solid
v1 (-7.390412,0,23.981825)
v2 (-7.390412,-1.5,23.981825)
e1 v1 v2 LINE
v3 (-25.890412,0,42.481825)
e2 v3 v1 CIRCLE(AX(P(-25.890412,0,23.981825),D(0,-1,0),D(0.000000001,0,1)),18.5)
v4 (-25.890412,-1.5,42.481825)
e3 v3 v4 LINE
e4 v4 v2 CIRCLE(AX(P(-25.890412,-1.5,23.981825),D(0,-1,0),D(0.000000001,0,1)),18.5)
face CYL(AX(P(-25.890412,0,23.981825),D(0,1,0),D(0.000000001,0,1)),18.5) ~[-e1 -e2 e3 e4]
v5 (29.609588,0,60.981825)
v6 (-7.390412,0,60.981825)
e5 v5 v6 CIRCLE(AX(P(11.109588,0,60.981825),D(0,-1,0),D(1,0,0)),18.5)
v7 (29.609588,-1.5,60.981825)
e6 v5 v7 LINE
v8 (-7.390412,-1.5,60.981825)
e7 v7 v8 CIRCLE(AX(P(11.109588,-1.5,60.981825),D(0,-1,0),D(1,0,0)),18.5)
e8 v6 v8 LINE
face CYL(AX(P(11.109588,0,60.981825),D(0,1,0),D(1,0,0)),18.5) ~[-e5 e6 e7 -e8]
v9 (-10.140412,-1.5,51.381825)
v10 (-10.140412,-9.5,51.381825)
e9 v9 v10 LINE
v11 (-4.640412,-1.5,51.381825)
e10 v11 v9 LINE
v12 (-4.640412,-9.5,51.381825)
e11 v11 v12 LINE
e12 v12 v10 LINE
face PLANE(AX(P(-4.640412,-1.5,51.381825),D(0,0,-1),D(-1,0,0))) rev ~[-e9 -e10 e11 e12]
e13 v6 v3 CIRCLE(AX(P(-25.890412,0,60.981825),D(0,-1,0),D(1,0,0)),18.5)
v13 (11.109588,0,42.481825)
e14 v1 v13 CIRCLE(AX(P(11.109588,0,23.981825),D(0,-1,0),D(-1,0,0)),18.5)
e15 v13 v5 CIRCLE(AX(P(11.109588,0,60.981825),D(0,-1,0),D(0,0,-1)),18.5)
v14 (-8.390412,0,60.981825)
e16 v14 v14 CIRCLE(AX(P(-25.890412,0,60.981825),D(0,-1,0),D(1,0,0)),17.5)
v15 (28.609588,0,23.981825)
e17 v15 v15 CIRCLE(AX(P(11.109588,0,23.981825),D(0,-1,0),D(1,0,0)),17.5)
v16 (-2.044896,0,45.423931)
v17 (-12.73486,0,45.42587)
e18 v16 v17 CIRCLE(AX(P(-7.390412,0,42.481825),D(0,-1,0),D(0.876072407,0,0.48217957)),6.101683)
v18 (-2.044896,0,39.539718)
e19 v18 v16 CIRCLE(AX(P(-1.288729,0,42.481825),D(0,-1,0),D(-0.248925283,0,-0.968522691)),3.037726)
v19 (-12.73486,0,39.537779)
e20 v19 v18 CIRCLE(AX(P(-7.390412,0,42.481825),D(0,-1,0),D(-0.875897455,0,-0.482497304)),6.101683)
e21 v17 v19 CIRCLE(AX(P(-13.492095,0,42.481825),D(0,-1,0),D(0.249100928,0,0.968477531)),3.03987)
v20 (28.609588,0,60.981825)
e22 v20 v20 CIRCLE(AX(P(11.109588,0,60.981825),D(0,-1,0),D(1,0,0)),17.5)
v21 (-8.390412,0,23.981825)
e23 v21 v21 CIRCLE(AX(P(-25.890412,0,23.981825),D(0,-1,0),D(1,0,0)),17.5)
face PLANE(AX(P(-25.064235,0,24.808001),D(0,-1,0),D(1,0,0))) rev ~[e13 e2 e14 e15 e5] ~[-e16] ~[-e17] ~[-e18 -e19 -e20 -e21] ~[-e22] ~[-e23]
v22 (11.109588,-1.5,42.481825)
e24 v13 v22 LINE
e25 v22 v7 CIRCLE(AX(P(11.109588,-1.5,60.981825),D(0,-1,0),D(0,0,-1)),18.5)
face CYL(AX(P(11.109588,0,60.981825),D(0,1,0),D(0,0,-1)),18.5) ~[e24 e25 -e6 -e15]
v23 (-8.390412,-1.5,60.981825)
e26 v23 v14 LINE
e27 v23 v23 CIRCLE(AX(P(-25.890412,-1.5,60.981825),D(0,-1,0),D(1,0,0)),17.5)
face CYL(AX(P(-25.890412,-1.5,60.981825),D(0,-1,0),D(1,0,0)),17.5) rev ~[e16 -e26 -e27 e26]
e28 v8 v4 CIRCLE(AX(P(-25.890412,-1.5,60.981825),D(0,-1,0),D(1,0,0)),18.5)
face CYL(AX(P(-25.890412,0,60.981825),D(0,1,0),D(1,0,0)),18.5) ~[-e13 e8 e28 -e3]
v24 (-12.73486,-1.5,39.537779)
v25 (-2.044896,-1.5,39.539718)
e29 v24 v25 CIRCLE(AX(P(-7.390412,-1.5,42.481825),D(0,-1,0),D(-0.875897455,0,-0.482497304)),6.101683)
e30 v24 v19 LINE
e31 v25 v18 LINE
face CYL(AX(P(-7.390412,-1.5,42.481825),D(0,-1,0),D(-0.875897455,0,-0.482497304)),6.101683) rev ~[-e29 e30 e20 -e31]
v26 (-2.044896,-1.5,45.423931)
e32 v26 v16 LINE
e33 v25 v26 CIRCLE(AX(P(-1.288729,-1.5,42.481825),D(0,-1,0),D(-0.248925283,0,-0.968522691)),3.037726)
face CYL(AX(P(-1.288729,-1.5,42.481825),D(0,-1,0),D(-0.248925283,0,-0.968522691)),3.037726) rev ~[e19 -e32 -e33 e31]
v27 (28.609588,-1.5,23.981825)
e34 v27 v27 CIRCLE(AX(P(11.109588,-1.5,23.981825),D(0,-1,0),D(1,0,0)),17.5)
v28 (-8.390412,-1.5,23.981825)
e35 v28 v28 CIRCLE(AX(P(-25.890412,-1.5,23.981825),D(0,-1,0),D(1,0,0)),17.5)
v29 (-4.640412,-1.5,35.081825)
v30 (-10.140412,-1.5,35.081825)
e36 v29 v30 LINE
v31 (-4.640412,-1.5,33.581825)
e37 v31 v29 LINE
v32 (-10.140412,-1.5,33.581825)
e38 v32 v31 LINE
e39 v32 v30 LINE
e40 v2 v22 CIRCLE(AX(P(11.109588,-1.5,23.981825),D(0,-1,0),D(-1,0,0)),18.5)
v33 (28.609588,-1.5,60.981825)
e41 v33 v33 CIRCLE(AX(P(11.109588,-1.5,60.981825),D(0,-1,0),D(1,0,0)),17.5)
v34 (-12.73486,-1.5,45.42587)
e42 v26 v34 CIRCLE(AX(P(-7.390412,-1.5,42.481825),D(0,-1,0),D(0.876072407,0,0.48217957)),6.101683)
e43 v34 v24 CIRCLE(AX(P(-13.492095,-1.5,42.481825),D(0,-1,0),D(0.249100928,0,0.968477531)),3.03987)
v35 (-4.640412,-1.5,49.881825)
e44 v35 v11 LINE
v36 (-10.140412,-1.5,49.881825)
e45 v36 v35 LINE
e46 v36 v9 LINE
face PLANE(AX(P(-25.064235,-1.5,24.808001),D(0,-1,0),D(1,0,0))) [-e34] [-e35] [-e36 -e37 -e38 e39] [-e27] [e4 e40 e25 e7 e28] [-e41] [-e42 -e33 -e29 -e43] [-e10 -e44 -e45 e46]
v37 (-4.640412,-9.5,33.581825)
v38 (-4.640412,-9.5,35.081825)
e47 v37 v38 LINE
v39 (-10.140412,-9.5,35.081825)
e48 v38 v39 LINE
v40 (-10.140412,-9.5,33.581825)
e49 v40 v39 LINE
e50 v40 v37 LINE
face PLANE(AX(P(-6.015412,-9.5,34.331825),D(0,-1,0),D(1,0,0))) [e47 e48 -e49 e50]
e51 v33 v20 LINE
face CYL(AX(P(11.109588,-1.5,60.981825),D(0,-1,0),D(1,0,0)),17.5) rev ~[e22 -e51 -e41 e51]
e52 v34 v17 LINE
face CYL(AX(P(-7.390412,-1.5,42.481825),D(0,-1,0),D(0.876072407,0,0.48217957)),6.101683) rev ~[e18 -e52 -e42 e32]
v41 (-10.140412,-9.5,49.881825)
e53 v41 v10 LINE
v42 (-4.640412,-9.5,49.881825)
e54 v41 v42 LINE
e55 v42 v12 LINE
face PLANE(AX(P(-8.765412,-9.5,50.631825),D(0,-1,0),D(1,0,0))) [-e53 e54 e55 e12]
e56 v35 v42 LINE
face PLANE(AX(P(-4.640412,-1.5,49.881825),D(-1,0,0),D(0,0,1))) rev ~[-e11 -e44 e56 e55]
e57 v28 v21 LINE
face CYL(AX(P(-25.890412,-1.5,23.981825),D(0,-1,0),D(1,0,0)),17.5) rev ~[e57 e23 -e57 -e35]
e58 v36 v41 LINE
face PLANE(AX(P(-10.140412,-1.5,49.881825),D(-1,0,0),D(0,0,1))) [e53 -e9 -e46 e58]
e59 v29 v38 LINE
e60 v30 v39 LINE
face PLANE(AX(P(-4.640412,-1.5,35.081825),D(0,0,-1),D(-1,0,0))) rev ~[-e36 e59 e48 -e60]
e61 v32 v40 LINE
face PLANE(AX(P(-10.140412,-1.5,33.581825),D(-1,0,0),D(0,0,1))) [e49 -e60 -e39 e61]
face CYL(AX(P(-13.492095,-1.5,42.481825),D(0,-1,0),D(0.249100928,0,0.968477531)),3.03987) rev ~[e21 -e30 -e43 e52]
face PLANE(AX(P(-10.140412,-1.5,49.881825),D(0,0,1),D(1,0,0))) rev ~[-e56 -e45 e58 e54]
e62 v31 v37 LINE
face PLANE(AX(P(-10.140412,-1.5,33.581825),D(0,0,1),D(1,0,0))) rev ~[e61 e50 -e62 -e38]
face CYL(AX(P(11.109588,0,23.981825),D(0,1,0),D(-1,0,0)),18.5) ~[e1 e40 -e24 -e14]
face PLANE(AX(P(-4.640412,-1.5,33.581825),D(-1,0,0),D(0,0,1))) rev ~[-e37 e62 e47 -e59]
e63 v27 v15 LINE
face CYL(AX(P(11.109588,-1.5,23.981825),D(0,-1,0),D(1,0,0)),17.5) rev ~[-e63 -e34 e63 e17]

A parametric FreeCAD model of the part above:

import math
import FreeCAD as App
import Part
import Sketcher

doc = App.newDocument("Part")
params = doc.addObject("Spreadsheet::Sheet", "Params")
for row, (alias, value) in enumerate([
    ("sketch1_radius", "18.5 mm"),
    ("pad1_length", "1.5 mm"),
    ("sketch2_diameter", "35 mm"),
    ("sketch3_width", "5.5 mm"),
    ("sketch3_height", "1.5 mm"),
    ("pad2_length", "8 mm"),
], start=1):
    params.set(f"A{row}", alias)
    params.set(f"B{row}", "=" + value)
    params.setAlias(f"B{row}", alias)

body = doc.addObject("PartDesign::Body", "Body")

# Sketch on XZ plane
sketch1 = body.newObject("Sketcher::SketchObject", "Sketch")
sketch1.AttachmentSupport = (doc.getObject("XZ_Plane"), [""])
sketch1.MapMode = "FlatFace"
sketch1.addGeometry([
    Part.ArcOfCircle(Part.Circle(App.Vector(-25.890412, 23.981825, 0), App.Vector(0, 0, 1), 18.5), math.radians(90), math.radians(360)),  # 0
    Part.ArcOfCircle(Part.Circle(App.Vector(11.109588, 23.981825, 0), App.Vector(0, 0, 1), 18.5), math.radians(180), math.radians(450)),  # 1
    Part.ArcOfCircle(Part.Circle(App.Vector(11.109588, 60.981825, 0), App.Vector(0, 0, 1), 18.5), math.radians(-90), math.radians(0)),  # 2
    Part.ArcOfCircle(Part.Circle(App.Vector(11.109588, 60.981825, 0), App.Vector(0, 0, 1), 18.5), math.radians(0), math.radians(180)),  # 3
    Part.ArcOfCircle(Part.Circle(App.Vector(-25.890412, 60.981825, 0), App.Vector(0, 0, 1), 18.5), math.radians(0), math.radians(270)),  # 4
], False)
sketch1.addConstraint([
    Sketcher.Constraint("Tangent", 0, 2, 1, 1),
    Sketcher.Constraint("Tangent", 1, 2, 2, 1),
    Sketcher.Constraint("Tangent", 2, 2, 3, 1),
    Sketcher.Constraint("Tangent", 3, 2, 4, 1),
    Sketcher.Constraint("Tangent", 4, 2, 0, 1),
    Sketcher.Constraint("Equal", 0, 1),
    Sketcher.Constraint("Equal", 1, 2),
    Sketcher.Constraint("Equal", 2, 3),
    Sketcher.Constraint("Equal", 3, 4),
    Sketcher.Constraint("Horizontal", 0, 3, 1, 3),
    Sketcher.Constraint("Horizontal", 4, 3, 2, 2),
    Sketcher.Constraint("Vertical", 1, 3, 2, 3),
    Sketcher.Constraint("Radius", 0, 18.5),
    Sketcher.Constraint("DistanceX", 0, 3, -1, 1, 25.890412),
    Sketcher.Constraint("DistanceY", -1, 1, 0, 3, 23.981825),
])
sketch1.setExpression("Constraints[12]", "Params.sketch1_radius")
pad1 = body.newObject("PartDesign::Pad", "Pad")
pad1.Profile = sketch1
pad1.setExpression("Length", "Params.pad1_length")

# Sketch on XZ plane
sketch2 = body.newObject("Sketcher::SketchObject", "Sketch001")
sketch2.AttachmentSupport = (doc.getObject("XZ_Plane"), [""])
sketch2.MapMode = "FlatFace"
sketch2.AttachmentOffset = App.Placement(App.Vector(0, 0, 1.5), App.Rotation())
sketch2.addGeometry([
    Part.Circle(App.Vector(-25.890412, 60.981825, 0), App.Vector(0, 0, 1), 17.5),
    Part.Circle(App.Vector(-25.890412, 23.981825, 0), App.Vector(0, 0, 1), 17.5),
    Part.Circle(App.Vector(11.109588, 60.981825, 0), App.Vector(0, 0, 1), 17.5),
    Part.Circle(App.Vector(11.109588, 23.981825, 0), App.Vector(0, 0, 1), 17.5),
], False)
sketch2.addConstraint([
    Sketcher.Constraint("Equal", 0, 1),
    Sketcher.Constraint("Equal", 1, 2),
    Sketcher.Constraint("Equal", 2, 3),
    Sketcher.Constraint("Horizontal", 0, 3, 2, 3),
    Sketcher.Constraint("Horizontal", 1, 3, 3, 3),
    Sketcher.Constraint("Vertical", 0, 3, 1, 3),
    Sketcher.Constraint("Vertical", 2, 3, 3, 3),
    Sketcher.Constraint("Diameter", 0, 35.0),
    Sketcher.Constraint("DistanceY", 1, 3, 0, 3, 37.0),
    Sketcher.Constraint("DistanceX", 0, 3, 2, 3, 37.0),
    Sketcher.Constraint("DistanceX", 0, 3, -1, 1, 25.890412),
    Sketcher.Constraint("DistanceY", -1, 1, 0, 3, 60.981825),
])
sketch2.setExpression("Constraints[7]", "Params.sketch2_diameter")
pocket1 = body.newObject("PartDesign::Pocket", "Pocket")
pocket1.Profile = sketch2
pocket1.Type = "ThroughAll"

# Sketch on XZ plane
sketch3 = body.newObject("Sketcher::SketchObject", "Sketch002")
sketch3.AttachmentSupport = (doc.getObject("XZ_Plane"), [""])
sketch3.MapMode = "FlatFace"
sketch3.AttachmentOffset = App.Placement(App.Vector(0, 0, 1.5), App.Rotation())
sketch3.addGeometry([
    Part.LineSegment(App.Vector(-4.640412, 33.581825, 0), App.Vector(-4.640412, 35.081825, 0)),  # 0
    Part.LineSegment(App.Vector(-4.640412, 35.081825, 0), App.Vector(-10.140412, 35.081825, 0)),  # 1
    Part.LineSegment(App.Vector(-10.140412, 35.081825, 0), App.Vector(-10.140412, 33.581825, 0)),  # 2
    Part.LineSegment(App.Vector(-10.140412, 33.581825, 0), App.Vector(-4.640412, 33.581825, 0)),  # 3
    Part.LineSegment(App.Vector(-10.140412, 51.381825, 0), App.Vector(-10.140412, 49.881825, 0)),  # 4
    Part.LineSegment(App.Vector(-10.140412, 49.881825, 0), App.Vector(-4.640412, 49.881825, 0)),  # 5
    Part.LineSegment(App.Vector(-4.640412, 49.881825, 0), App.Vector(-4.640412, 51.381825, 0)),  # 6
    Part.LineSegment(App.Vector(-4.640412, 51.381825, 0), App.Vector(-10.140412, 51.381825, 0)),  # 7
], False)
sketch3.addConstraint([
    Sketcher.Constraint("Coincident", 0, 2, 1, 1),
    Sketcher.Constraint("Coincident", 1, 2, 2, 1),
    Sketcher.Constraint("Coincident", 2, 2, 3, 1),
    Sketcher.Constraint("Coincident", 3, 2, 0, 1),
    Sketcher.Constraint("Coincident", 4, 2, 5, 1),
    Sketcher.Constraint("Coincident", 5, 2, 6, 1),
    Sketcher.Constraint("Coincident", 6, 2, 7, 1),
    Sketcher.Constraint("Coincident", 7, 2, 4, 1),
    Sketcher.Constraint("Vertical", 0),
    Sketcher.Constraint("Horizontal", 1),
    Sketcher.Constraint("Vertical", 2),
    Sketcher.Constraint("Horizontal", 3),
    Sketcher.Constraint("Vertical", 4),
    Sketcher.Constraint("Horizontal", 5),
    Sketcher.Constraint("Vertical", 6),
    Sketcher.Constraint("Horizontal", 7),
    Sketcher.Constraint("Vertical", 2, 2, 4, 2),
    Sketcher.Constraint("Vertical", 3, 2, 5, 2),
    Sketcher.Constraint("Equal", 2, 4),
    Sketcher.Constraint("DistanceX", 1, 2, 1, 1, 5.5),
    Sketcher.Constraint("DistanceY", 0, 1, 0, 2, 1.5),
    Sketcher.Constraint("DistanceY", 1, 2, 4, 2, 14.8),
    Sketcher.Constraint("DistanceX", 0, 2, -1, 1, 4.640412),
    Sketcher.Constraint("DistanceY", -1, 1, 0, 2, 35.081825),
])
sketch3.setExpression("Constraints[19]", "Params.sketch3_width")
sketch3.setExpression("Constraints[20]", "Params.sketch3_height")
pad2 = body.newObject("PartDesign::Pad", "Pad001")
pad2.Profile = sketch3
pad2.setExpression("Length", "Params.pad2_length")

# Sketch on XZ plane
sketch4 = body.newObject("Sketcher::SketchObject", "Sketch003")
sketch4.AttachmentSupport = (doc.getObject("XZ_Plane"), [""])
sketch4.MapMode = "FlatFace"
sketch4.AttachmentOffset = App.Placement(App.Vector(0, 0, 1.5), App.Rotation())
sketch4.addGeometry([
    Part.ArcOfCircle(Part.Circle(App.Vector(-13.492095, 42.481825, 0), App.Vector(0, 0, 1), 3.03987), math.radians(75.575684), math.radians(284.424316)),
    Part.ArcOfCircle(Part.Circle(App.Vector(-7.390412, 42.481825, 0), App.Vector(0, 0, 1), 6.101683), math.radians(-151.151368), math.radians(-28.82785)),
    Part.ArcOfCircle(Part.Circle(App.Vector(-1.288729, 42.481825, 0), App.Vector(0, 0, 1), 3.037726), math.radians(-104.413925), math.radians(104.413925)),
    Part.ArcOfCircle(Part.Circle(App.Vector(-7.390412, 42.481825, 0), App.Vector(0, 0, 1), 6.101683), math.radians(28.82785), math.radians(151.151368)),
], False)
sketch4.addConstraint([
    Sketcher.Constraint("Coincident", 0, 2, 1, 1),
    Sketcher.Constraint("Coincident", 1, 2, 2, 1),
    Sketcher.Constraint("Coincident", 2, 2, 3, 1),
    Sketcher.Constraint("Coincident", 3, 2, 0, 1),
    Sketcher.Constraint("Coincident", 3, 3, 1, 3),
    Sketcher.Constraint("Equal", 1, 3),
    Sketcher.Constraint("Horizontal", 0, 3, 1, 3),
    Sketcher.Constraint("Horizontal", 1, 3, 2, 3),
    Sketcher.Constraint("Radius", 0, 3.03987),
    Sketcher.Constraint("Radius", 1, 6.101683),
    Sketcher.Constraint("Radius", 2, 3.037726),
    Sketcher.Constraint("DistanceX", 0, 3, 1, 2, 11.447199),
    Sketcher.Constraint("DistanceX", 1, 3, -1, 1, 7.390412),
    Sketcher.Constraint("DistanceX", 2, 3, -1, 1, 1.288729),
    Sketcher.Constraint("DistanceY", -1, 1, 0, 2, 39.537779),
])
pocket2 = body.newObject("PartDesign::Pocket", "Pocket001")
pocket2.Profile = sketch4
pocket2.Type = "ThroughAll"

doc.recompute()
